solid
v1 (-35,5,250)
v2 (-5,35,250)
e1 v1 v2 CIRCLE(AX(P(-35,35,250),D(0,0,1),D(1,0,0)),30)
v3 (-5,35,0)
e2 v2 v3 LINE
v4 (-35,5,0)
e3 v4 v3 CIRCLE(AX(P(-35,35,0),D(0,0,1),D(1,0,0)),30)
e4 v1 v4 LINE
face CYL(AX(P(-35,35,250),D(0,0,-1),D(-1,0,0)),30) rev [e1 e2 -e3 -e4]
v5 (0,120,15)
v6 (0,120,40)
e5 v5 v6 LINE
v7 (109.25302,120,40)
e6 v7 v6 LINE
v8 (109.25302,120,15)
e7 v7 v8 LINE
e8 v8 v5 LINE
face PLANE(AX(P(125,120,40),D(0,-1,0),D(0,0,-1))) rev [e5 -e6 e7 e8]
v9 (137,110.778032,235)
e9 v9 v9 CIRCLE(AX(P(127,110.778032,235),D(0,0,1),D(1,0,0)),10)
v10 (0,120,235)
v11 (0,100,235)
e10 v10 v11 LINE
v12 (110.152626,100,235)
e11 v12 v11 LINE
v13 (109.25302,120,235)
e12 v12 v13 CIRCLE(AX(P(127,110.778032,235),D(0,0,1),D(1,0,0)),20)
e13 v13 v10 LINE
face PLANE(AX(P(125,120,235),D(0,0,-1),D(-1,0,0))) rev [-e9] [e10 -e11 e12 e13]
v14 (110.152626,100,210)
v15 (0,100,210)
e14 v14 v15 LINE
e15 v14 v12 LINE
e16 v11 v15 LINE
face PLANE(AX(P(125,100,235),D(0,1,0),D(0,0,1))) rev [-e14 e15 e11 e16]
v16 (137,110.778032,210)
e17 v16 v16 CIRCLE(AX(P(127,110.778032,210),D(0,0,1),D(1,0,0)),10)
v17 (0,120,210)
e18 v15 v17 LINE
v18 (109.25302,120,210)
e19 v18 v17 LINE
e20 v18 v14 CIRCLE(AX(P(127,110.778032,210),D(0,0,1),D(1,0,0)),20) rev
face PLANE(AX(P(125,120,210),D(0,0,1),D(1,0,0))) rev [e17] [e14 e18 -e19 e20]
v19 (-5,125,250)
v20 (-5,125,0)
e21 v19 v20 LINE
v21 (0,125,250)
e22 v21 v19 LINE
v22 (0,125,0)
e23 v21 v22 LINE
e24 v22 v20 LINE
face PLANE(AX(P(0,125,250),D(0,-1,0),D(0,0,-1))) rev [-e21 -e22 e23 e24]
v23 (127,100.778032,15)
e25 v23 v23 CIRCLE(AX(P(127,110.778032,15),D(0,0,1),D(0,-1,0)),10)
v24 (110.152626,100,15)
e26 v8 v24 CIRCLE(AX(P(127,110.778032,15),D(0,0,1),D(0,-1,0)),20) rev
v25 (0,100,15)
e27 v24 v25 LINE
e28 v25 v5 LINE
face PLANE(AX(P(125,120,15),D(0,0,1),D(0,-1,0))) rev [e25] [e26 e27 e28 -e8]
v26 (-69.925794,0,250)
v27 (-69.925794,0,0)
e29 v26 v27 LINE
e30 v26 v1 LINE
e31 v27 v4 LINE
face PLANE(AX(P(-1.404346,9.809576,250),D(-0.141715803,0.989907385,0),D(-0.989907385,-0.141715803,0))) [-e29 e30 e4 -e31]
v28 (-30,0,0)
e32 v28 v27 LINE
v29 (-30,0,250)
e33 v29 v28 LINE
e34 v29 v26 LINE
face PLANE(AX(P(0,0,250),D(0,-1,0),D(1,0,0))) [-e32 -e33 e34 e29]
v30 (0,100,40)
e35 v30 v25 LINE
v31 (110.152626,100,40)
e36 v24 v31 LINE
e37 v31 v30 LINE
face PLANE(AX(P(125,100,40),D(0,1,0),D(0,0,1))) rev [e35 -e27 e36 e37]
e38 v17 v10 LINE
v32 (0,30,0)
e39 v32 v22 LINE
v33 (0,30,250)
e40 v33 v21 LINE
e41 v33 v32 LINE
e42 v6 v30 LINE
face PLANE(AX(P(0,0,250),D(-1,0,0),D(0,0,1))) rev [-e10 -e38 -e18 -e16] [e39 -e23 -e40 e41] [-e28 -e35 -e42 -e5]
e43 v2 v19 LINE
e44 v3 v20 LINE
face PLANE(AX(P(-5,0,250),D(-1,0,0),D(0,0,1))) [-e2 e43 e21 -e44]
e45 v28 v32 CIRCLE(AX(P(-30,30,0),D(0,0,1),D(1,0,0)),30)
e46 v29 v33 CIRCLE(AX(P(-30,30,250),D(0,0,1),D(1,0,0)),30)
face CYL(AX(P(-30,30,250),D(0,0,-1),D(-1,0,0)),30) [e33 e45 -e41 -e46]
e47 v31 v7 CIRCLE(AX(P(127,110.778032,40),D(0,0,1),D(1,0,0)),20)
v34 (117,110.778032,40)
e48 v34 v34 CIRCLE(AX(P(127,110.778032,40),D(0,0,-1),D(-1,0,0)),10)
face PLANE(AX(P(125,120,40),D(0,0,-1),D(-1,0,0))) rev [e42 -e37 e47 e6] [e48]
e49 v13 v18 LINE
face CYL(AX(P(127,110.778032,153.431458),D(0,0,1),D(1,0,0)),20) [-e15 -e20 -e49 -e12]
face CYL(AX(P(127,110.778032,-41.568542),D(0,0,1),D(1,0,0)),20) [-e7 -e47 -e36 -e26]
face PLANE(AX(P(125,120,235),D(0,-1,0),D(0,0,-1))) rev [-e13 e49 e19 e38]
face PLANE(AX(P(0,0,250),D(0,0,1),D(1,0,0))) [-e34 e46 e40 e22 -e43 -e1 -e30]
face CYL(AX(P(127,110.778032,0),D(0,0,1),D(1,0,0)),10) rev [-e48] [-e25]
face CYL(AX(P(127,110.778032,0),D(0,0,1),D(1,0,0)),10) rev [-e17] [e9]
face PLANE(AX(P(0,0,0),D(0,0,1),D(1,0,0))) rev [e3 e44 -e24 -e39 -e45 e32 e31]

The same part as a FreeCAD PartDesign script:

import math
import FreeCAD as App
import Part
import Sketcher
from FreeCAD import Vector

doc = App.newDocument("Part")
params = doc.addObject("Spreadsheet::Sheet", "Params")
for row, (alias, value) in enumerate([
    ("sketch1_radius", "30 mm"),
    ("sketch1_width", "5 mm"),
    ("sketch1_height", "95 mm"),
    ("sketch1_height2", "90 mm"),
    ("pad1_length", "250 mm"),
    ("sketch2_width", "20 mm"),
    ("sketch2_height", "25 mm"),
    ("pad2_length", "125 mm"),
    ("sketch3_diameter", "40 mm"),
    ("pad3_length", "25 mm"),
    ("sketch4_diameter", "40 mm"),
    ("pad4_length", "25 mm"),
    ("sketch5_diameter", "20 mm"),
], start=1):
    params.set(f"A{row}", alias)
    params.set(f"B{row}", "=" + value)
    params.setAlias(f"B{row}", alias)

body = doc.addObject("PartDesign::Body", "Body")

# Sketch on XY plane
sketch1 = body.newObject("Sketcher::SketchObject", "Sketch")
sketch1.AttachmentSupport = (doc.getObject("XY_Plane"), [""])
sketch1.MapMode = "FlatFace"
sketch1.addGeometry([
    Part.LineSegment(Vector(-70, 0, 0), Vector(-30, 0, 0)),  # 0
    Part.ArcOfCircle(Part.Circle(Vector(-30, 30, 0), Vector(0, 0, 1), 30), math.radians(-90), math.radians(0)),  # 1
    Part.LineSegment(Vector(0, 30, 0), Vector(0, 125, 0)),  # 2
    Part.LineSegment(Vector(0, 125, 0), Vector(-5, 125, 0)),  # 3
    Part.LineSegment(Vector(-5, 125, 0), Vector(-5, 35, 0)),  # 4
    Part.ArcOfCircle(Part.Circle(Vector(-35, 35, 0), Vector(0, 0, 1), 30), math.radians(-90), math.radians(0)),  # 5
    Part.LineSegment(Vector(-35, 5, 0), Vector(-70, 0, 0)),  # 6
], False)
sketch1.addConstraint([
    Sketcher.Constraint("Tangent", 0, 2, 1, 1),
    Sketcher.Constraint("Tangent", 1, 2, 2, 1),
    Sketcher.Constraint("Coincident", 2, 2, 3, 1),
    Sketcher.Constraint("Coincident", 3, 2, 4, 1),
    Sketcher.Constraint("Tangent", 4, 2, 5, 2),
    Sketcher.Constraint("Coincident", 5, 1, 6, 1),
    Sketcher.Constraint("Coincident", 6, 2, 0, 1),
    Sketcher.Constraint("Horizontal", 0),
    Sketcher.Constraint("Vertical", 2),
    Sketcher.Constraint("Horizontal", 3),
    Sketcher.Constraint("Vertical", 4),
    Sketcher.Constraint("Equal", 1, 5),
    Sketcher.Constraint("PointOnObject", 0, 2, -1),
    Sketcher.Constraint("PointOnObject", 1, 2, -2),
    Sketcher.Constraint("Radius", 1, 30.0),
    Sketcher.Constraint("DistanceX", 3, 2, 3, 1, 5.0),
    Sketcher.Constraint("DistanceY", 2, 1, 2, 2, 95.0),
    Sketcher.Constraint("DistanceY", 4, 2, 4, 1, 90.0),
    Sketcher.Constraint("DistanceX", 5, 1, -1, 1, 35.0),
    Sketcher.Constraint("Distance", 6, 35.28188),
])
sketch1.setExpression("Constraints[14]", "Params.sketch1_radius")
sketch1.setExpression("Constraints[15]", "Params.sketch1_width")
sketch1.setExpression("Constraints[16]", "Params.sketch1_height")
sketch1.setExpression("Constraints[17]", "Params.sketch1_height2")
pad1 = body.newObject("PartDesign::Pad", "Pad")
pad1.Profile = sketch1
pad1.setExpression("Length", "Params.pad1_length")

# Sketch on YZ plane
sketch2 = body.newObject("Sketcher::SketchObject", "Sketch001")
sketch2.AttachmentSupport = (doc.getObject("YZ_Plane"), [""])
sketch2.MapMode = "FlatFace"
sketch2.addGeometry([
    Part.LineSegment(Vector(120, 235, 0), Vector(100, 235, 0)),  # 0
    Part.LineSegment(Vector(100, 235, 0), Vector(100, 210, 0)),  # 1
    Part.LineSegment(Vector(100, 210, 0), Vector(120, 210, 0)),  # 2
    Part.LineSegment(Vector(120, 210, 0), Vector(120, 235, 0)),  # 3
    Part.LineSegment(Vector(120, 40, 0), Vector(100, 40, 0)),  # 4
    Part.LineSegment(Vector(100, 40, 0), Vector(100, 15, 0)),  # 5
    Part.LineSegment(Vector(100, 15, 0), Vector(120, 15, 0)),  # 6
    Part.LineSegment(Vector(120, 15, 0), Vector(120, 40, 0)),  # 7
], False)
sketch2.addConstraint([
    Sketcher.Constraint("Coincident", 0, 2, 1, 1),
    Sketcher.Constraint("Coincident", 1, 2, 2, 1),
    Sketcher.Constraint("Coincident", 2, 2, 3, 1),
    Sketcher.Constraint("Coincident", 3, 2, 0, 1),
    Sketcher.Constraint("Coincident", 4, 2, 5, 1),
    Sketcher.Constraint("Coincident", 5, 2, 6, 1),
    Sketcher.Constraint("Coincident", 6, 2, 7, 1),
    Sketcher.Constraint("Coincident", 7, 2, 4, 1),
    Sketcher.Constraint("Horizontal", 0),
    Sketcher.Constraint("Vertical", 1),
    Sketcher.Constraint("Horizontal", 2),
    Sketcher.Constraint("Vertical", 3),
    Sketcher.Constraint("Horizontal", 4),
    Sketcher.Constraint("Vertical", 5),
    Sketcher.Constraint("Horizontal", 6),
    Sketcher.Constraint("Vertical", 7),
    Sketcher.Constraint("Vertical", 1, 2, 4, 2),
    Sketcher.Constraint("Vertical", 3, 2, 6, 2),
    Sketcher.Constraint("Equal", 3, 5),
    Sketcher.Constraint("DistanceX", 0, 2, 0, 1, 20.0),
    Sketcher.Constraint("DistanceY", 1, 2, 1, 1, 25.0),
    Sketcher.Constraint("DistanceX", -1, 1, 0, 2, 100.0),
    Sketcher.Constraint("DistanceY", -1, 1, 0, 2, 235.0),
    Sketcher.Constraint("DistanceY", -1, 1, 4, 2, 40.0),
])
sketch2.setExpression("Constraints[19]", "Params.sketch2_width")
sketch2.setExpression("Constraints[20]", "Params.sketch2_height")
pad2 = body.newObject("PartDesign::Pad", "Pad001")
pad2.Profile = sketch2
pad2.setExpression("Length", "Params.pad2_length")

# Sketch on XY plane
sketch3 = body.newObject("Sketcher::SketchObject", "Sketch002")
sketch3.AttachmentSupport = (doc.getObject("XY_Plane"), [""])
sketch3.MapMode = "FlatFace"
sketch3.AttachmentOffset = App.Placement(Vector(0, 0, 235), App.Rotation())
sketch3.addGeometry(Part.Circle(Vector(127, 111, 0), Vector(0, 0, 1), 20), False)
sketch3.addConstraint([
    Sketcher.Constraint("Diameter", 0, 40.0),
    Sketcher.Constraint("DistanceX", -1, 1, 0, 3, 127.0),
    Sketcher.Constraint("DistanceY", -1, 1, 0, 3, 110.778032),
])
sketch3.setExpression("Constraints[0]", "Params.sketch3_diameter")
pad3 = body.newObject("PartDesign::Pad", "Pad002")
pad3.Profile = sketch3
pad3.setExpression("Length", "Params.pad3_length")
pad3.Reversed = True

# Sketch on XY plane
sketch4 = body.newObject("Sketcher::SketchObject", "Sketch003")
sketch4.AttachmentSupport = (doc.getObject("XY_Plane"), [""])
sketch4.MapMode = "FlatFace"
sketch4.AttachmentOffset = App.Placement(Vector(0, 0, 40), App.Rotation())
sketch4.addGeometry(Part.Circle(Vector(127, 111, 0), Vector(0, 0, 1), 20), False)
sketch4.addConstraint([
    Sketcher.Constraint("Diameter", 0, 40.0),
    Sketcher.Constraint("DistanceX", -1, 1, 0, 3, 127.0),
    Sketcher.Constraint("DistanceY", -1, 1, 0, 3, 110.778032),
])
sketch4.setExpression("Constraints[0]", "Params.sketch4_diameter")
pad4 = body.newObject("PartDesign::Pad", "Pad003")
pad4.Profile = sketch4
pad4.setExpression("Length", "Params.pad4_length")
pad4.Reversed = True

# Sketch on XY plane
sketch5 = body.newObject("Sketcher::SketchObject", "Sketch004")
sketch5.AttachmentSupport = (doc.getObject("XY_Plane"), [""])
sketch5.MapMode = "FlatFace"
sketch5.AttachmentOffset = App.Placement(Vector(0, 0, 235), App.Rotation())
sketch5.addGeometry(Part.Circle(Vector(127, 111, 0), Vector(0, 0, 1), 10), False)
sketch5.addConstraint([
    Sketcher.Constraint("Diameter", 0, 20.0),
    Sketcher.Constraint("DistanceX", -1, 1, 0, 3, 127.0),
    Sketcher.Constraint("DistanceY", -1, 1, 0, 3, 110.778032),
])
sketch5.setExpression("Constraints[0]", "Params.sketch5_diameter")
pocket1 = body.newObject("PartDesign::Pocket", "Pocket")
pocket1.Profile = sketch5
pocket1.Type = "ThroughAll"

doc.recompute()
